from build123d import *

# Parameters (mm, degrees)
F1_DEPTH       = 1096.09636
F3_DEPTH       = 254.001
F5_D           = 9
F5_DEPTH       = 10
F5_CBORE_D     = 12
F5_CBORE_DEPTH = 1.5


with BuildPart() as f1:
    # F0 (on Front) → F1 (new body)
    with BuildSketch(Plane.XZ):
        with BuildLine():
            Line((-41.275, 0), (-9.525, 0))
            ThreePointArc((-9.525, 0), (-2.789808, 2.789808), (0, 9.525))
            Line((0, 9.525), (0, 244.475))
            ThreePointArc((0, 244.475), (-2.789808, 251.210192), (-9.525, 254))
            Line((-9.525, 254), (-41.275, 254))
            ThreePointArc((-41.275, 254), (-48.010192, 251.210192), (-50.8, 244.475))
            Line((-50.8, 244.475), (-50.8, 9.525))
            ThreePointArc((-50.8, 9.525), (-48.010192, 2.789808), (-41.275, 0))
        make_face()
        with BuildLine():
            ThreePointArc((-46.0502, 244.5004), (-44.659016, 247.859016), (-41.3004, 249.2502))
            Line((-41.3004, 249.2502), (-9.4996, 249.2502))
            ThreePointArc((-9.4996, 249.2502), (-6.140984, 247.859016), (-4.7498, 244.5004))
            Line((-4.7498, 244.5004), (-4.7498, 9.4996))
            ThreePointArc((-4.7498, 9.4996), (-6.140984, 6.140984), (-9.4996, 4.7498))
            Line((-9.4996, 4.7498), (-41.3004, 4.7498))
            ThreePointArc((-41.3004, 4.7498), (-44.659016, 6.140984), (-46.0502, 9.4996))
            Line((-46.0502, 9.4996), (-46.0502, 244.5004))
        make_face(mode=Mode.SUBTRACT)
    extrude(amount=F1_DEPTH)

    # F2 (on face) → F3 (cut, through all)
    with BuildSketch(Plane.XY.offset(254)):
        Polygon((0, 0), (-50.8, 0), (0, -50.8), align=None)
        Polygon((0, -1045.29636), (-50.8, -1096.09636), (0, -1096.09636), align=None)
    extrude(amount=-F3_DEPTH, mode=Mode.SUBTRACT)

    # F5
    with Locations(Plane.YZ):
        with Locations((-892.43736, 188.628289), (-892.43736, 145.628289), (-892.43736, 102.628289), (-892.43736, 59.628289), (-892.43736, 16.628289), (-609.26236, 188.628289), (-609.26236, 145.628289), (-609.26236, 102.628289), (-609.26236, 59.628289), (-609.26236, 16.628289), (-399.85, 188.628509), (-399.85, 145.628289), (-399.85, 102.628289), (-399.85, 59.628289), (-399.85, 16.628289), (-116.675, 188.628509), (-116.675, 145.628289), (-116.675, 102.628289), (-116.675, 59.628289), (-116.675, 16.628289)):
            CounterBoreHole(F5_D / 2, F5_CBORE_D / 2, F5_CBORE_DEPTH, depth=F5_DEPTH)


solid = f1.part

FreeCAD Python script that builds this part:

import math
import FreeCAD as App
import Part
import Sketcher

V = App.Vector
Q = App.Units.Quantity

doc = App.newDocument("Part")
body = doc.addObject("PartDesign::Body", "Body")

# Sketch on XZ plane
sketch1 = body.newObject("Sketcher::SketchObject", "Sketch")
sketch1.AttachmentSupport = (doc.getObject("XZ_Plane"), [""])
sketch1.MapMode = "FlatFace"
sketch1.addGeometry([
    Part.LineSegment(V(-41.3, 0, 0), V(-9.5, 0, 0)),  # 0
    Part.ArcOfCircle(Part.Circle(V(-9.5, 9.5, 0), V(0, 0, 1), 9.5), math.radians(-90), math.radians(0)),  # 1
    Part.LineSegment(V(0, 9.5, 0), V(0, 244.5, 0)),  # 2
    Part.ArcOfCircle(Part.Circle(V(-9.5, 244.5, 0), V(0, 0, 1), 9.5), math.radians(0), math.radians(90)),  # 3
    Part.LineSegment(V(-9.5, 254, 0), V(-41.3, 254, 0)),  # 4
    Part.ArcOfCircle(Part.Circle(V(-41.3, 244.5, 0), V(0, 0, 1), 9.5), math.radians(90), math.radians(180)),  # 5
    Part.LineSegment(V(-50.8, 244.5, 0), V(-50.8, 9.5, 0)),  # 6
    Part.ArcOfCircle(Part.Circle(V(-41.3, 9.5, 0), V(0, 0, 1), 9.5), math.radians(-180), math.radians(-90)),  # 7
    Part.LineSegment(V(-46.1, 9.5, 0), V(-46.1, 244.5, 0)),  # 8
    Part.ArcOfCircle(Part.Circle(V(-41.3, 244.5, 0), V(0, 0, 1), 4.7), math.radians(90), math.radians(180)),  # 9
    Part.LineSegment(V(-41.3, 249.3, 0), V(-9.5, 249.3, 0)),  # 10
    Part.ArcOfCircle(Part.Circle(V(-9.5, 244.5, 0), V(0, 0, 1), 4.7), math.radians(0), math.radians(90)),  # 11
    Part.LineSegment(V(-4.7, 244.5, 0), V(-4.7, 9.5, 0)),  # 12
    Part.ArcOfCircle(Part.Circle(V(-9.5, 9.5, 0), V(0, 0, 1), 4.7), math.radians(-90), math.radians(0)),  # 13
    Part.LineSegment(V(-9.5, 4.7, 0), V(-41.3, 4.7, 0)),  # 14
    Part.ArcOfCircle(Part.Circle(V(-41.3, 9.5, 0), V(0, 0, 1), 4.7), math.radians(180), math.radians(270)),  # 15
], False)
sketch1.addConstraint([
    Sketcher.Constraint("Tangent", 0, 2, 1, 1),
    Sketcher.Constraint("Tangent", 1, 2, 2, 1),
    Sketcher.Constraint("Tangent", 2, 2, 3, 1),
    Sketcher.Constraint("Tangent", 3, 2, 4, 1),
    Sketcher.Constraint("Tangent", 4, 2, 5, 1),
    Sketcher.Constraint("Tangent", 5, 2, 6, 1),
    Sketcher.Constraint("Tangent", 6, 2, 7, 1),
    Sketcher.Constraint("Tangent", 7, 2, 0, 1),
    Sketcher.Constraint("Tangent", 8, 2, 9, 2),
    Sketcher.Constraint("Tangent", 9, 1, 10, 1),
    Sketcher.Constraint("Tangent", 10, 2, 11, 2),
    Sketcher.Constraint("Tangent", 11, 1, 12, 1),
    Sketcher.Constraint("Tangent", 12, 2, 13, 2),
    Sketcher.Constraint("Tangent", 13, 1, 14, 1),
    Sketcher.Constraint("Tangent", 14, 2, 15, 2),
    Sketcher.Constraint("Tangent", 15, 1, 8, 1),
    Sketcher.Constraint("Horizontal", 0),
    Sketcher.Constraint("Vertical", 2),
    Sketcher.Constraint("Horizontal", 4),
    Sketcher.Constraint("Vertical", 6),
    Sketcher.Constraint("Vertical", 8),
    Sketcher.Constraint("Horizontal", 10),
    Sketcher.Constraint("Vertical", 12),
    Sketcher.Constraint("Horizontal", 14),
    Sketcher.Constraint("Equal", 1, 3),
    Sketcher.Constraint("Equal", 3, 5),
    Sketcher.Constraint("Equal", 5, 7),
    Sketcher.Constraint("Equal", 9, 11),
    Sketcher.Constraint("Equal", 11, 13),
    Sketcher.Constraint("Equal", 13, 15),
    Sketcher.Constraint("PointOnObject", 0, 2, -1),
    Sketcher.Constraint("PointOnObject", 1, 2, -2),
    Sketcher.Constraint("DistanceY", -1, 1, 3, 2, Q("10 in")),
    Sketcher.Constraint("DistanceX", 5, 2, -1, 1, Q("2 in")),
    Sketcher.Constraint("Radius", 1, Q("0.375 in")),
    Sketcher.Constraint("Radius", 9, Q("0.187 in")),
    Sketcher.Constraint("DistanceX", 10, 1, 10, 2, Q("1.252 in")),
    Sketcher.Constraint("DistanceY", 8, 1, 8, 2, Q("9.252 in")),
    Sketcher.Constraint("DistanceX", 9, 3, -1, 1, Q("1.626 in")),
    Sketcher.Constraint("DistanceY", -1, 1, 9, 3, Q("9.626 in")),
])
pad1 = body.newObject("PartDesign::Pad", "Pad")
pad1.Profile = sketch1
pad1.Length = Q("43.1534 in")

# Sketch on XY plane
sketch2 = body.newObject("Sketcher::SketchObject", "Sketch001")
sketch2.AttachmentSupport = (doc.getObject("XY_Plane"), [""])
sketch2.MapMode = "FlatFace"
sketch2.AttachmentOffset = App.Placement(V(0, 0, 10 * 25.4), App.Rotation())
sketch2.addGeometry([
    Part.LineSegment(V(0, 0, 0), V(-51, 0, 0)),  # 0
    Part.LineSegment(V(-51, 0, 0), V(0, -51, 0)),  # 1
    Part.LineSegment(V(0, -51, 0), V(0, 0, 0)),  # 2
    Part.LineSegment(V(0, -1045, 0), V(-51, -1096, 0)),  # 3
    Part.LineSegment(V(-51, -1096, 0), V(0, -1096, 0)),  # 4
    Part.LineSegment(V(0, -1096, 0), V(0, -1045, 0)),  # 5
], False)
sketch2.addConstraint([
    Sketcher.Constraint("Coincident", 0, 2, 1, 1),
    Sketcher.Constraint("Coincident", 1, 2, 2, 1),
    Sketcher.Constraint("Coincident", 2, 2, 0, 1),
    Sketcher.Constraint("Coincident", 3, 2, 4, 1),
    Sketcher.Constraint("Coincident", 4, 2, 5, 1),
    Sketcher.Constraint("Coincident", 5, 2, 3, 1),
    Sketcher.Constraint("Horizontal", 0),
    Sketcher.Constraint("Vertical", 2),
    Sketcher.Constraint("Horizontal", 4),
    Sketcher.Constraint("Vertical", 5),
    Sketcher.Constraint("Coincident", 2, 2, -1, 1),
    Sketcher.Constraint("PointOnObject", 4, 2, -2),
    Sketcher.Constraint("Perpendicular", 1, 3),
    Sketcher.Constraint("Vertical", 0, 2, 3, 2),
    Sketcher.Constraint("Equal", 4, 2),
    Sketcher.Constraint("DistanceX", 0, 2, 0, 1, Q("2 in")),
    Sketcher.Constraint("DistanceY", 3, 2, -1, 1, Q("43.1534 in")),
])
pocket1 = body.newObject("PartDesign::Pocket", "Pocket")
pocket1.Profile = sketch2
pocket1.Type = "ThroughAll"

# Sketch on YZ plane
sketch3 = body.newObject("Sketcher::SketchObject", "Sketch002")
sketch3.AttachmentSupport = (doc.getObject("YZ_Plane"), [""])
sketch3.MapMode = "FlatFace"
sketch3.addGeometry([
    Part.Circle(V(-892.4, 188.6, 0), V(0, 0, 1), 4.5),  # 0
    Part.Circle(V(-892.4, 145.6, 0), V(0, 0, 1), 4.5),  # 1
    Part.Circle(V(-892.4, 102.6, 0), V(0, 0, 1), 4.5),  # 2
    Part.Circle(V(-892.4, 59.6, 0), V(0, 0, 1), 4.5),  # 3
    Part.Circle(V(-892.4, 16.6, 0), V(0, 0, 1), 4.5),  # 4
    Part.Circle(V(-609.3, 188.6, 0), V(0, 0, 1), 4.5),  # 5
    Part.Circle(V(-609.3, 145.6, 0), V(0, 0, 1), 4.5),  # 6
    Part.Circle(V(-609.3, 102.6, 0), V(0, 0, 1), 4.5),  # 7
    Part.Circle(V(-609.3, 59.6, 0), V(0, 0, 1), 4.5),  # 8
    Part.Circle(V(-609.3, 16.6, 0), V(0, 0, 1), 4.5),  # 9
    Part.Circle(V(-399.9, 188.6, 0), V(0, 0, 1), 4.5),  # 10
    Part.Circle(V(-399.9, 145.6, 0), V(0, 0, 1), 4.5),  # 11
    Part.Circle(V(-399.9, 102.6, 0), V(0, 0, 1), 4.5),  # 12
    Part.Circle(V(-399.9, 59.6, 0), V(0, 0, 1), 4.5),  # 13
    Part.Circle(V(-399.9, 16.6, 0), V(0, 0, 1), 4.5),  # 14
    Part.Circle(V(-116.7, 188.6, 0), V(0, 0, 1), 4.5),  # 15
    Part.Circle(V(-116.7, 145.6, 0), V(0, 0, 1), 4.5),  # 16
    Part.Circle(V(-116.7, 102.6, 0), V(0, 0, 1), 4.5),  # 17
    Part.Circle(V(-116.7, 59.6, 0), V(0, 0, 1), 4.5),  # 18
    Part.Circle(V(-116.7, 16.6, 0), V(0, 0, 1), 4.5),  # 19
], False)
sketch3.addConstraint([
    Sketcher.Constraint("Equal", 0, 1),
    Sketcher.Constraint("Equal", 1, 2),
    Sketcher.Constraint("Equal", 2, 3),
    Sketcher.Constraint("Equal", 3, 4),
    Sketcher.Constraint("Equal", 4, 5),
    Sketcher.Constraint("Equal", 5, 6),
    Sketcher.Constraint("Equal", 6, 7),
    Sketcher.Constraint("Equal", 7, 8),
    Sketcher.Constraint("Equal", 8, 9),
    Sketcher.Constraint("Equal", 9, 10),
    Sketcher.Constraint("Equal", 10, 11),
    Sketcher.Constraint("Equal", 11, 12),
    Sketcher.Constraint("Equal", 12, 13),
    Sketcher.Constraint("Equal", 13, 14),
    Sketcher.Constraint("Equal", 14, 15),
    Sketcher.Constraint("Equal", 15, 16),
    Sketcher.Constraint("Equal", 16, 17),
    Sketcher.Constraint("Equal", 17, 18),
    Sketcher.Constraint("Equal", 18, 19),
    Sketcher.Constraint("Horizontal", 0, 3, 5, 3),
    Sketcher.Constraint("Horizontal", 1, 3, 6, 3),
    Sketcher.Constraint("Horizontal", 2, 3, 7, 3),
    Sketcher.Constraint("Horizontal", 3, 3, 8, 3),
    Sketcher.Constraint("Horizontal", 4, 3, 9, 3),
    Sketcher.Constraint("Horizontal", 6, 3, 11, 3),
    Sketcher.Constraint("Horizontal", 7, 3, 12, 3),
    Sketcher.Constraint("Horizontal", 8, 3, 13, 3),
    Sketcher.Constraint("Horizontal", 9, 3, 14, 3),
    Sketcher.Constraint("Horizontal", 10, 3, 15, 3),
    Sketcher.Constraint("Horizontal", 11, 3, 16, 3),
    Sketcher.Constraint("Horizontal", 12, 3, 17, 3),
    Sketcher.Constraint("Horizontal", 13, 3, 18, 3),
    Sketcher.Constraint("Horizontal", 14, 3, 19, 3),
    Sketcher.Constraint("Vertical", 0, 3, 1, 3),
    Sketcher.Constraint("Vertical", 1, 3, 2, 3),
    Sketcher.Constraint("Vertical", 2, 3, 3, 3),
    Sketcher.Constraint("Vertical", 3, 3, 4, 3),
    Sketcher.Constraint("Vertical", 5, 3, 6, 3),
    Sketcher.Constraint("Vertical", 6, 3, 7, 3),
    Sketcher.Constraint("Vertical", 7, 3, 8, 3),
    Sketcher.Constraint("Vertical", 8, 3, 9, 3),
    Sketcher.Constraint("Vertical", 10, 3, 11, 3),
    Sketcher.Constraint("Vertical", 11, 3, 12, 3),
    Sketcher.Constraint("Vertical", 12, 3, 13, 3),
    Sketcher.Constraint("Vertical", 13, 3, 14, 3),
    Sketcher.Constraint("Vertical", 15, 3, 16, 3),
    Sketcher.Constraint("Vertical", 16, 3, 17, 3),
    Sketcher.Constraint("Vertical", 17, 3, 18, 3),
    Sketcher.Constraint("Vertical", 18, 3, 19, 3),
    Sketcher.Constraint("Diameter", 0, Q("9 mm")),
    Sketcher.Constraint("DistanceX", 10, 3, -1, 1, Q("399.85 mm")),
    Sketcher.Constraint("DistanceX", 15, 3, -1, 1, Q("116.675 mm")),
    Sketcher.Constraint("DistanceY", 1, 3, 0, 3, Q("43 mm")),
    Sketcher.Constraint("DistanceY", 2, 3, 1, 3, Q("43 mm")),
    Sketcher.Constraint("DistanceY", 3, 3, 2, 3, Q("43 mm")),
    Sketcher.Constraint("DistanceY", 4, 3, 3, 3, Q("43 mm")),
    Sketcher.Constraint("DistanceX", 0, 3, 5, 3, Q("283.175 mm")),
    Sketcher.Constraint("DistanceX", 0, 3, -1, 1, Q("892.43736 mm")),
    Sketcher.Constraint("DistanceY", -1, 1, 0, 3, Q("188.628289 mm")),
    Sketcher.Constraint("DistanceY", -1, 1, 10, 3, Q("188.628509 mm")),
])
doc.recompute()
hole = body.newObject("PartDesign::Hole", "Hole")
hole.Profile = sketch3
hole.ThreadType = "None"
hole.Diameter = 9
hole.DepthType = "Dimension"
hole.Depth = 10
hole.DrillPoint = "Flat"
hole.HoleCutType = "Counterbore"
hole.HoleCutDiameter = 12
hole.HoleCutDepth = 1.5

doc.recompute()
